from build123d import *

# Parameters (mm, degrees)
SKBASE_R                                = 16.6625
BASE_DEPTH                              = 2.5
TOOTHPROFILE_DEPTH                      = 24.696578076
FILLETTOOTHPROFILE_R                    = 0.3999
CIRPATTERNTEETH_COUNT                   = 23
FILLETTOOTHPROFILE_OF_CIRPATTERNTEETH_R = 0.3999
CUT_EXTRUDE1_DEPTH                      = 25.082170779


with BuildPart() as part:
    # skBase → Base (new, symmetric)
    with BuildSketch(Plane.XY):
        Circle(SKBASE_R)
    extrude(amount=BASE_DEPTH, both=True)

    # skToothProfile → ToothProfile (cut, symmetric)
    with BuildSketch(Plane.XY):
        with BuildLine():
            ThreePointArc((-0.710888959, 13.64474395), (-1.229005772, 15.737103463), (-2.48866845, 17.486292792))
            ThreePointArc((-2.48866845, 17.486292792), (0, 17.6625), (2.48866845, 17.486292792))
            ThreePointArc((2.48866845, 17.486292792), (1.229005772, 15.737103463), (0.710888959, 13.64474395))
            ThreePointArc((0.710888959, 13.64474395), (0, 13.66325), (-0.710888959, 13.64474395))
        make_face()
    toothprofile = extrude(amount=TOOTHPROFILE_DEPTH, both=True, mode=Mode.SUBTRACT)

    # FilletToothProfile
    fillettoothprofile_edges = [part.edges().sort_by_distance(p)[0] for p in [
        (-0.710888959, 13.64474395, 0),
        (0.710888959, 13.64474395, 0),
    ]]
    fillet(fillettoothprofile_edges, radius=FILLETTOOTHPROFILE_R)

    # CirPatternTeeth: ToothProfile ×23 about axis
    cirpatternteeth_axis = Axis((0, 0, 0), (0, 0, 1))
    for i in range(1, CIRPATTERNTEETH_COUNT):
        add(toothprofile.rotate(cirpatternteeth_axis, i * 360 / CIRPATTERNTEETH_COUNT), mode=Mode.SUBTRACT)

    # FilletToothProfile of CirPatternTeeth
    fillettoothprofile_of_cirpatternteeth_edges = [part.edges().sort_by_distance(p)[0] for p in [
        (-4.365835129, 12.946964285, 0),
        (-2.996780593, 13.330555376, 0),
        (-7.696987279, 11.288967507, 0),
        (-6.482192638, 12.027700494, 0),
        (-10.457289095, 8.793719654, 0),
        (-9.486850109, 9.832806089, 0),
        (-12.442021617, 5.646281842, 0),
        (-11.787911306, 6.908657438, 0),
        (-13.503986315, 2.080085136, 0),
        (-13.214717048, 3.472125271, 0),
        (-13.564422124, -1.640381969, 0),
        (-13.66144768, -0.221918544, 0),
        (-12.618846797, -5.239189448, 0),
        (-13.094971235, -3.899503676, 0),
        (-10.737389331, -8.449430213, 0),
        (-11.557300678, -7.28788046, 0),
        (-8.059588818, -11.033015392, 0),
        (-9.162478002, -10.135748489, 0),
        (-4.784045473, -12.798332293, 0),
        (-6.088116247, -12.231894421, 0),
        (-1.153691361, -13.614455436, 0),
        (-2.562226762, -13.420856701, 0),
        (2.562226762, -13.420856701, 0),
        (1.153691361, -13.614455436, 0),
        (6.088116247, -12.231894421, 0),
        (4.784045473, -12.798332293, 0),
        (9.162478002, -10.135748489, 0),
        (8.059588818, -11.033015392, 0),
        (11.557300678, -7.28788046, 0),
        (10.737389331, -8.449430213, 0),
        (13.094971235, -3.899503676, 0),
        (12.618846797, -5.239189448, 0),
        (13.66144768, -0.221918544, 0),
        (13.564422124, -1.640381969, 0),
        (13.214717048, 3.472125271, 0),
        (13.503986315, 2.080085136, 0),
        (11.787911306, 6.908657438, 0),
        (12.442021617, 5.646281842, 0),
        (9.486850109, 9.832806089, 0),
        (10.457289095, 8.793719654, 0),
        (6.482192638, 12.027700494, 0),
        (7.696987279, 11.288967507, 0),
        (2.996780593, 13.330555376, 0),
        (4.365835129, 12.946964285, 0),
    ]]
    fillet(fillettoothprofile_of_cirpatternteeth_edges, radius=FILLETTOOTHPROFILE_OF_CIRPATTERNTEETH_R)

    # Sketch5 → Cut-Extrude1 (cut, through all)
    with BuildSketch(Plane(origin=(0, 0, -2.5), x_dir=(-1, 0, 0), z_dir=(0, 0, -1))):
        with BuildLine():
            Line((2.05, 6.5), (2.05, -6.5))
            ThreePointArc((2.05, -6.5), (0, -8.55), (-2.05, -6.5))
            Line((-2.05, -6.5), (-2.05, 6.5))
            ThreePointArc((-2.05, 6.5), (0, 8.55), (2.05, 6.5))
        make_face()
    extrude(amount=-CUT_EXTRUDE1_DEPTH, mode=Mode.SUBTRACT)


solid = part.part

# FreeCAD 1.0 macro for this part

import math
import FreeCAD as App
import Part
import Sketcher
from FreeCAD import Vector


def edges_at(feature, points):
    """Names of the edges that pass closest to the given points."""
    edges = feature.Shape.Edges
    near = lambda p: min(range(len(edges)), key=lambda i: edges[i].distToShape(Part.Vertex(*p))[0])
    return sorted({f"Edge{near(p) + 1}" for p in points})

doc = App.newDocument("Part")
params = doc.addObject("Spreadsheet::Sheet", "Params")
for row, (alias, value) in enumerate([
    ("pad1_length", "5 mm"),
    ("pocket1_length", "49.393156 mm"),
    ("fillet_radius", "0.3999 mm"),
    ("fillet2_radius", "0.3999 mm"),
    ("sketch3_height", "13 mm"),
    ("sketch3_radius", "2.05 mm"),
], start=1):
    params.set(f"A{row}", alias)
    params.set(f"B{row}", "=" + value)
    params.setAlias(f"B{row}", alias)

body = doc.addObject("PartDesign::Body", "Body")

# Sketch on XY plane
sketch1 = body.newObject("Sketcher::SketchObject", "Sketch")
sketch1.AttachmentSupport = (doc.getObject("XY_Plane"), [""])
sketch1.MapMode = "FlatFace"
sketch1.addGeometry(Part.Circle(Vector(0, 0, 0), Vector(0, 0, 1), 17), False)
sketch1.addConstraint(Sketcher.Constraint("Coincident", 0, 3, -1, 1))
sketch1.addConstraint(Sketcher.Constraint("Diameter", 0, 33.325))
pad1 = body.newObject("PartDesign::Pad", "Pad")
pad1.Profile = sketch1
pad1.setExpression("Length", "Params.pad1_length")
pad1.Midplane = True

# Sketch on XY plane
sketch2 = body.newObject("Sketcher::SketchObject", "Sketch001")
sketch2.AttachmentSupport = (doc.getObject("XY_Plane"), [""])
sketch2.MapMode = "FlatFace"
sketch2.addGeometry(Part.ArcOfCircle(Part.Circle(Vector(-6.4, 13.3, 0), Vector(0, 0, 1), 5.7), math.radians(3), math.radians(47)), False)
sketch2.addGeometry(Part.ArcOfCircle(Part.Circle(Vector(0, 0, 0), Vector(0, 0, 1), 13.7), math.radians(87.02), math.radians(92.98)), False)
sketch2.addGeometry(Part.ArcOfCircle(Part.Circle(Vector(6.4, 13.3, 0), Vector(0, 0, 1), 5.7), math.radians(133), math.radians(177)), False)
sketch2.addGeometry(Part.ArcOfCircle(Part.Circle(Vector(0, 0, 0), Vector(0, 0, 1), 17.7), math.radians(81.9), math.radians(98.1)), False)
sketch2.addConstraint(Sketcher.Constraint("Coincident", 0, 1, 1, 2))
sketch2.addConstraint(Sketcher.Constraint("Coincident", 1, 1, 2, 2))
sketch2.addConstraint(Sketcher.Constraint("Coincident", 2, 1, 3, 1))
sketch2.addConstraint(Sketcher.Constraint("Coincident", 3, 2, 0, 2))
sketch2.addConstraint(Sketcher.Constraint("Coincident", 1, 3, -1, 1))
sketch2.addConstraint(Sketcher.Constraint("Coincident", 3, 3, -1, 1))
sketch2.addConstraint(Sketcher.Constraint("Equal", 0, 2))
sketch2.addConstraint(Sketcher.Constraint("Symmetric", 0, 3, 2, 3, -2))
sketch2.addConstraint(Sketcher.Constraint("Radius", 3, 17.6625))
sketch2.addConstraint(Sketcher.Constraint("Radius", 1, 13.66325))
sketch2.addConstraint(Sketcher.Constraint("Radius", 0, 5.686453))
sketch2.addConstraint(Sketcher.Constraint("DistanceX", 0, 3, -1, 1, 6.38964))
sketch2.addConstraint(Sketcher.Constraint("DistanceY", -1, 1, 0, 3, 13.348882))
pocket1 = body.newObject("PartDesign::Pocket", "Pocket")
pocket1.Profile = sketch2
pocket1.setExpression("Length", "Params.pocket1_length")
pocket1.Midplane = True
doc.recompute()

fillet = body.newObject("PartDesign::Fillet", "Fillet")
fillet.Base = (pocket1, edges_at(pocket1, [(-0.711, 13.645, 0), (0.711, 13.645, 0)]))
fillet.setExpression("Radius", "Params.fillet_radius")
doc.recompute()

polarpattern = body.newObject("PartDesign::PolarPattern", "PolarPattern")
polarpattern.Originals = [pocket1]
polarpattern.Axis = (doc.getObject("Z_Axis"), [""])
polarpattern.Angle = 360
polarpattern.Occurrences = 23
body.Tip = polarpattern
doc.recompute()

fillet2 = body.newObject("PartDesign::Fillet", "Fillet001")
fillet2.Base = (polarpattern, edges_at(polarpattern, [
    (-4.366, 12.947, 0),
    (-2.997, 13.331, 0),
    (-7.697, 11.289, 0),
    (-6.482, 12.028, 0),
    (-10.457, 8.794, 0),
    (-9.487, 9.833, 0),
    (-12.442, 5.646, 0),
    (-11.788, 6.909, 0),
    (-13.504, 2.08, 0),
    (-13.215, 3.472, 0),
    (-13.564, -1.64, 0),
    (-13.661, -0.222, 0),
    (-12.619, -5.239, 0),
    (-13.095, -3.9, 0),
    (-10.737, -8.449, 0),
    (-11.557, -7.288, 0),
    (-8.06, -11.033, 0),
    (-9.162, -10.136, 0),
    (-4.784, -12.798, 0),
    (-6.088, -12.232, 0),
    (-1.154, -13.614, 0),
    (-2.562, -13.421, 0),
    (2.562, -13.421, 0),
    (1.154, -13.614, 0),
    (6.088, -12.232, 0),
    (4.784, -12.798, 0),
    (9.162, -10.136, 0),
    (8.06, -11.033, 0),
    (11.557, -7.288, 0),
    (10.737, -8.449, 0),
    (13.095, -3.9, 0),
    (12.619, -5.239, 0),
    (13.661, -0.222, 0),
    (13.564, -1.64, 0),
    (13.215, 3.472, 0),
    (13.504, 2.08, 0),
    (11.788, 6.909, 0),
    (12.442, 5.646, 0),
    (9.487, 9.833, 0),
    (10.457, 8.794, 0),
    (6.482, 12.028, 0),
    (7.697, 11.289, 0),
    (2.997, 13.331, 0),
    (4.366, 12.947, 0),
]))
fillet2.setExpression("Radius", "Params.fillet2_radius")

# Sketch on XY plane
sketch3 = body.newObject("Sketcher::SketchObject", "Sketch002")
sketch3.AttachmentSupport = (doc.getObject("XY_Plane"), [""])
sketch3.MapMode = "FlatFace"
sketch3.AttachmentOffset = App.Placement(Vector(0, 0, -2.5), App.Rotation())
sketch3.addGeometry(Part.LineSegment(Vector(-2, -6.5, 0), Vector(-2, 6.5, 0)), False)
sketch3.addGeometry(Part.ArcOfCircle(Part.Circle(Vector(0, 6.5, 0), Vector(0, 0, 1), 2), math.radians(0), math.radians(180)), False)
sketch3.addGeometry(Part.LineSegment(Vector(2, 6.5, 0), Vector(2, -6.5, 0)), False)
sketch3.addGeometry(Part.ArcOfCircle(Part.Circle(Vector(0, -6.5, 0), Vector(0, 0, 1), 2), math.radians(180), math.radians(360)), False)
sketch3.addConstraint(Sketcher.Constraint("Tangent", 0, 2, 1, 2))
sketch3.addConstraint(Sketcher.Constraint("Tangent", 1, 1, 2, 1))
sketch3.addConstraint(Sketcher.Constraint("Tangent", 2, 2, 3, 2))
sketch3.addConstraint(Sketcher.Constraint("Tangent", 3, 1, 0, 1))
sketch3.addConstraint(Sketcher.Constraint("Vertical", 0))
sketch3.addConstraint(Sketcher.Constraint("Vertical", 2))
sketch3.addConstraint(Sketcher.Constraint("Symmetric", 1, 3, 3, 3, -1, 1))
sketch3.addConstraint(Sketcher.Constraint("DistanceY", 0, 1, 0, 2, 13.0))
sketch3.addConstraint(Sketcher.Constraint("Radius", 1, 2.05))
sketch3.setExpression("Constraints[7]", "Params.sketch3_height")
sketch3.setExpression("Constraints[8]", "Params.sketch3_radius")
pocket2 = body.newObject("PartDesign::Pocket", "Pocket001")
pocket2.Profile = sketch3
pocket2.Type = "ThroughAll"
pocket2.Reversed = True

doc.recompute()
